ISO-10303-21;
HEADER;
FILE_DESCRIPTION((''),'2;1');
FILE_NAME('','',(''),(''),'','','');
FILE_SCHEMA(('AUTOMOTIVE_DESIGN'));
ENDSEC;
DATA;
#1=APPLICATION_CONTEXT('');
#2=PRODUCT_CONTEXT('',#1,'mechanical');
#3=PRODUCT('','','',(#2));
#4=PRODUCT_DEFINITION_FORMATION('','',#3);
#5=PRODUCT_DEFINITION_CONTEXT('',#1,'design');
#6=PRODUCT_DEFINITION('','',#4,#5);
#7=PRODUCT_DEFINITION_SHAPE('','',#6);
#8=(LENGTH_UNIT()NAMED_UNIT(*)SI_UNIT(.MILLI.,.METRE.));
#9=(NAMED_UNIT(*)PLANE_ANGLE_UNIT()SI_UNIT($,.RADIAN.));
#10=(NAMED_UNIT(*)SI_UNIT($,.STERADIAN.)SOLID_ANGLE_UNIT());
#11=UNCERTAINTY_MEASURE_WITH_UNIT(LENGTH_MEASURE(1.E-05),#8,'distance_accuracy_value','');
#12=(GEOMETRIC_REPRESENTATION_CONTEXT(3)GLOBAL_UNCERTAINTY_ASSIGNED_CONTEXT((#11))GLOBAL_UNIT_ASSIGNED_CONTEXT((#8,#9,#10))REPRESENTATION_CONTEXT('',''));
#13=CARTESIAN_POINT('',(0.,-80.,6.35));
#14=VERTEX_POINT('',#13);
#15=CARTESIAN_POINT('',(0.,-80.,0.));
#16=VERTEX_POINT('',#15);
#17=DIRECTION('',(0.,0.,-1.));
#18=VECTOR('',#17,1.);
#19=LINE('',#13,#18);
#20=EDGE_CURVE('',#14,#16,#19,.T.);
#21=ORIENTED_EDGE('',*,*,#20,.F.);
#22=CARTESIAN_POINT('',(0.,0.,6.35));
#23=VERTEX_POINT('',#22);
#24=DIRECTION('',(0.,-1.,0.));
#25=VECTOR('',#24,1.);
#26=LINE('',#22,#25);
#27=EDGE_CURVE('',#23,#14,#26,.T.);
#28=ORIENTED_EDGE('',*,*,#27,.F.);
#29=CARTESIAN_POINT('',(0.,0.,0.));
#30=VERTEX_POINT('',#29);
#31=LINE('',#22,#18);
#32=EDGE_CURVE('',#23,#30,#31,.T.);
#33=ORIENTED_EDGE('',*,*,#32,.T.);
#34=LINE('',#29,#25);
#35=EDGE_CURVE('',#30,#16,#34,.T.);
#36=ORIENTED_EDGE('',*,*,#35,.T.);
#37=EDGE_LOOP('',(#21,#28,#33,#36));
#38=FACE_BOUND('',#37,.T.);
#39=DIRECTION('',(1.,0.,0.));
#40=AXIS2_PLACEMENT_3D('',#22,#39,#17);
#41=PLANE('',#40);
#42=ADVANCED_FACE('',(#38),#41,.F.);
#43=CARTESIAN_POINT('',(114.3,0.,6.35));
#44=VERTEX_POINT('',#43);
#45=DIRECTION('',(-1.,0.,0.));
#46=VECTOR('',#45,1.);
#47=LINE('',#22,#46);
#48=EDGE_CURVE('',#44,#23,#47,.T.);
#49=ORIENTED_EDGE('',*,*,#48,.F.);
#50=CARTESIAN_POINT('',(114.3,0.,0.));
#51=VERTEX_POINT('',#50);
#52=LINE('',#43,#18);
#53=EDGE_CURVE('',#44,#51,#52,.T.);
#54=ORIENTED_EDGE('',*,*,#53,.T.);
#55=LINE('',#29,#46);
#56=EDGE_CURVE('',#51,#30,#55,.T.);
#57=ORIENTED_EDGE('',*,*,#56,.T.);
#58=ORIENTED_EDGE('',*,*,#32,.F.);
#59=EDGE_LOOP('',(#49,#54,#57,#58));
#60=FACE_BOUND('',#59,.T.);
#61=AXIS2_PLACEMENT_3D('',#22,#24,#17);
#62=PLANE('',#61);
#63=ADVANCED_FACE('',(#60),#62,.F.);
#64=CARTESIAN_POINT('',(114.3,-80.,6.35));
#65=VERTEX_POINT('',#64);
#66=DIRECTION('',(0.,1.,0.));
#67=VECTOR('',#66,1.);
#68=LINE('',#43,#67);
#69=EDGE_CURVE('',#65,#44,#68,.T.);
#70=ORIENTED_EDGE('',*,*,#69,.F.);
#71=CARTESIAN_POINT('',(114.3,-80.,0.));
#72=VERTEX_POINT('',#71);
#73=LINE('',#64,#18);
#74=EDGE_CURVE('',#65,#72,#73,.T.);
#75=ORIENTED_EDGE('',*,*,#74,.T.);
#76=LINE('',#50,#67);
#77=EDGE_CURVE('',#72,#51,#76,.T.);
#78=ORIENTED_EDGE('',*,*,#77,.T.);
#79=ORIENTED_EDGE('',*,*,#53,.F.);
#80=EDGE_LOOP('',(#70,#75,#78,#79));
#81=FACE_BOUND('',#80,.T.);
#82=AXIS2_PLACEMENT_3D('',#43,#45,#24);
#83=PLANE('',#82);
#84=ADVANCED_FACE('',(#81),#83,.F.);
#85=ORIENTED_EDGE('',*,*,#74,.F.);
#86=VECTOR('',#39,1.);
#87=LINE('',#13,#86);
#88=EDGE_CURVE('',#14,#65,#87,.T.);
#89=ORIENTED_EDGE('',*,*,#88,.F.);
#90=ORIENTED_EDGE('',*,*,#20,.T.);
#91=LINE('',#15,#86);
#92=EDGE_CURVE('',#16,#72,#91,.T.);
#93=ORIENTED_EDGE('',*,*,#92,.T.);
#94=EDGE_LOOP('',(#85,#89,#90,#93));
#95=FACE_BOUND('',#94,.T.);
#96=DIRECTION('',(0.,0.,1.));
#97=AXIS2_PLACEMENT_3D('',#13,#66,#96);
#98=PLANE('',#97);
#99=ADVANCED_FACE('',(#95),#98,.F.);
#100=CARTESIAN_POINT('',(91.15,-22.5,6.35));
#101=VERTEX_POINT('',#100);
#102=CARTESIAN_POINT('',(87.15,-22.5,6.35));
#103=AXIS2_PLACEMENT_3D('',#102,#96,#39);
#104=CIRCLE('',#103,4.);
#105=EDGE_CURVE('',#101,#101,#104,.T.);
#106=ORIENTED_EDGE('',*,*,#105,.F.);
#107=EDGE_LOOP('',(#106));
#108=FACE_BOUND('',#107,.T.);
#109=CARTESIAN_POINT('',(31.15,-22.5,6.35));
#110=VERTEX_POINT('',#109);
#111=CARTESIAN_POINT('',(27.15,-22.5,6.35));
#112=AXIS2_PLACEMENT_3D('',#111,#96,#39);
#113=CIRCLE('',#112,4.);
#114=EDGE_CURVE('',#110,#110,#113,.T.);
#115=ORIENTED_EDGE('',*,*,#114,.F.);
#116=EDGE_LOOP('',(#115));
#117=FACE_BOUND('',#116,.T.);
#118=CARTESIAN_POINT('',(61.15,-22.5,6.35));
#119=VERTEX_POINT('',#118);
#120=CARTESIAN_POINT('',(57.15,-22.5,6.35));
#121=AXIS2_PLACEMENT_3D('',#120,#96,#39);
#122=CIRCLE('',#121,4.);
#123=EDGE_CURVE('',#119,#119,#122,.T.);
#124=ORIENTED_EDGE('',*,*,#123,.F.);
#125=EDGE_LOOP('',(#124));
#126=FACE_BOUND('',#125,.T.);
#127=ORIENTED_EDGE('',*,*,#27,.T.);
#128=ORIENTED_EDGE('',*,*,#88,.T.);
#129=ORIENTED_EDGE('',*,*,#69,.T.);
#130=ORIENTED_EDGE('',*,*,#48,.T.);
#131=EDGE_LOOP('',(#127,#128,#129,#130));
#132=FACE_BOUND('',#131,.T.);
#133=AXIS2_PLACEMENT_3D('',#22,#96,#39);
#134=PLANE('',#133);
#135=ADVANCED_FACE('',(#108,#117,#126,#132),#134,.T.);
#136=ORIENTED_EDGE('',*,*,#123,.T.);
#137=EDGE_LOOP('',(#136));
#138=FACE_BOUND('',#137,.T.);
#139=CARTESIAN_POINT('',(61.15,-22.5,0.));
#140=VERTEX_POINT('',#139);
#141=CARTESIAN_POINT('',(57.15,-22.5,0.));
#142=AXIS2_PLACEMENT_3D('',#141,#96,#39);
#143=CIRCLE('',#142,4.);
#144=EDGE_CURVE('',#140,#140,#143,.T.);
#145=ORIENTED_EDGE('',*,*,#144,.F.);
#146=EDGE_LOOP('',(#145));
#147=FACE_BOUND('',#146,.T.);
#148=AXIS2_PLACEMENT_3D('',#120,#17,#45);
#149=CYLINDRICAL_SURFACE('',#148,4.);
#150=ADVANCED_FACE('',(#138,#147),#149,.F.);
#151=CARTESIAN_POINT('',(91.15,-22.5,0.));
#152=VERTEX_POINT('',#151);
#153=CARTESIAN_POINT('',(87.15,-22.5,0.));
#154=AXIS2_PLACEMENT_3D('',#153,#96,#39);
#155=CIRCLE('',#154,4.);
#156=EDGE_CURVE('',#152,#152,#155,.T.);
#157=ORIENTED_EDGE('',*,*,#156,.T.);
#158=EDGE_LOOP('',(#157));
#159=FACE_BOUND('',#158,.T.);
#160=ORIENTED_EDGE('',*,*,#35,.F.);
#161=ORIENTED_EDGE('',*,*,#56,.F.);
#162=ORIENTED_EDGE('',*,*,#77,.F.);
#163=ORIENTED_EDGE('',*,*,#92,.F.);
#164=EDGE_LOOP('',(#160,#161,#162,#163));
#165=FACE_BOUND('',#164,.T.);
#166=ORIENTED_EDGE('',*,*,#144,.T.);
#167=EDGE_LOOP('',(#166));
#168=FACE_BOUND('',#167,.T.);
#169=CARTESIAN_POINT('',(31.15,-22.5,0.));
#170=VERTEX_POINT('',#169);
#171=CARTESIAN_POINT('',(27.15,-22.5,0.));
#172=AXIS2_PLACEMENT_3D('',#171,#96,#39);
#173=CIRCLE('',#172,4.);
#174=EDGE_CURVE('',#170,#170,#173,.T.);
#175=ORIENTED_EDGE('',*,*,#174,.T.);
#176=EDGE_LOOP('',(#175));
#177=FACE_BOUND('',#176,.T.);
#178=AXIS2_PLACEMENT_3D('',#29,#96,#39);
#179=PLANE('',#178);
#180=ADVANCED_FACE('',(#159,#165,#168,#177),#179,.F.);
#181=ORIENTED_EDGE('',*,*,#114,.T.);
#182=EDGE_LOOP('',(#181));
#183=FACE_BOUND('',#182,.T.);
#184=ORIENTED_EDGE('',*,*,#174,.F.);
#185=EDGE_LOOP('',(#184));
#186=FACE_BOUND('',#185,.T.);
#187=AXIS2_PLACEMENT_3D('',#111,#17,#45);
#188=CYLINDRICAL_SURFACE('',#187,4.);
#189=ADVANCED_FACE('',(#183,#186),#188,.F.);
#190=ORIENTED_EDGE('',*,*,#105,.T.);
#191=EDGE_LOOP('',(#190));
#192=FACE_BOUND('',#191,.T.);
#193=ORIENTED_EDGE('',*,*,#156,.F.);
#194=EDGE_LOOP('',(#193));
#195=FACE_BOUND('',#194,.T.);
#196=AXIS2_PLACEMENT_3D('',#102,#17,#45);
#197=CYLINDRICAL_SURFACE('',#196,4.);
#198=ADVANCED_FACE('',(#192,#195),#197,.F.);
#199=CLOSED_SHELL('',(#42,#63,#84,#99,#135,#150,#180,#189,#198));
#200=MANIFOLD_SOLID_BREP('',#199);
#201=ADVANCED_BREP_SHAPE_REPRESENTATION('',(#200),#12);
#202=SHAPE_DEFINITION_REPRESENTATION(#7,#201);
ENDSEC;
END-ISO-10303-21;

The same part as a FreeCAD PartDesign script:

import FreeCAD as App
import Part
import Sketcher

V = App.Vector
Q = App.Units.Quantity


def add_polygon(sketch, points):
    """Adds a closed chain of lines whose ends are joined by coincident constraints."""
    first, n = sketch.GeometryCount, len(points)
    for a, b in zip(points, points[1:] + points[:1]):
        sketch.addGeometry(Part.LineSegment(App.Vector(*a, 0), App.Vector(*b, 0)), False)
    for i in range(n):
        sketch.addConstraint(Sketcher.Constraint("Coincident", first + i, 2, first + (i + 1) % n, 1))

doc = App.newDocument("Part")
body = doc.addObject("PartDesign::Body", "Body")

# Sketch on XY plane
sketch1 = body.newObject("Sketcher::SketchObject", "Sketch")
sketch1.AttachmentSupport = (doc.getObject("XY_Plane"), [""])
sketch1.MapMode = "FlatFace"
add_polygon(sketch1, [(0, 0), (0, -80), (114.3, -80), (114.3, 0)])  # lines 0-3
sketch1.addGeometry(Part.Circle(V(27.1, -22.5, 0), V(0, 0, 1), 4), False)  # 4
sketch1.addGeometry(Part.Circle(V(57.1, -22.5, 0), V(0, 0, 1), 4), False)  # 5
sketch1.addGeometry(Part.Circle(V(87.2, -22.5, 0), V(0, 0, 1), 4), False)  # 6
sketch1.addConstraint([
    Sketcher.Constraint("Vertical", 0),
    Sketcher.Constraint("Horizontal", 1),
    Sketcher.Constraint("Vertical", 2),
    Sketcher.Constraint("Horizontal", 3),
    Sketcher.Constraint("Coincident", 3, 2, -1, 1),
    Sketcher.Constraint("Equal", 4, 5),
    Sketcher.Constraint("Equal", 5, 6),
    Sketcher.Constraint("Horizontal", 4, 3, 5, 3),
    Sketcher.Constraint("Horizontal", 5, 3, 6, 3),
    Sketcher.Constraint("Diameter", 4, Q("8 mm")),
    Sketcher.Constraint("DistanceY", 0, 2, 0, 1, Q("80 mm")),
    Sketcher.Constraint("DistanceX", 1, 1, 1, 2, Q("114.3 mm")),
    Sketcher.Constraint("DistanceX", 4, 3, 5, 3, Q("30 mm")),
    Sketcher.Constraint("DistanceX", 5, 3, 6, 3, Q("30 mm")),
    Sketcher.Constraint("DistanceY", 4, 3, -1, 1, Q("22.5 mm")),
    Sketcher.Constraint("DistanceX", -1, 1, 4, 3, Q("27.15 mm")),
])
pad1 = body.newObject("PartDesign::Pad", "Pad")
pad1.Profile = sketch1
pad1.Length = 6.35

doc.recompute()
